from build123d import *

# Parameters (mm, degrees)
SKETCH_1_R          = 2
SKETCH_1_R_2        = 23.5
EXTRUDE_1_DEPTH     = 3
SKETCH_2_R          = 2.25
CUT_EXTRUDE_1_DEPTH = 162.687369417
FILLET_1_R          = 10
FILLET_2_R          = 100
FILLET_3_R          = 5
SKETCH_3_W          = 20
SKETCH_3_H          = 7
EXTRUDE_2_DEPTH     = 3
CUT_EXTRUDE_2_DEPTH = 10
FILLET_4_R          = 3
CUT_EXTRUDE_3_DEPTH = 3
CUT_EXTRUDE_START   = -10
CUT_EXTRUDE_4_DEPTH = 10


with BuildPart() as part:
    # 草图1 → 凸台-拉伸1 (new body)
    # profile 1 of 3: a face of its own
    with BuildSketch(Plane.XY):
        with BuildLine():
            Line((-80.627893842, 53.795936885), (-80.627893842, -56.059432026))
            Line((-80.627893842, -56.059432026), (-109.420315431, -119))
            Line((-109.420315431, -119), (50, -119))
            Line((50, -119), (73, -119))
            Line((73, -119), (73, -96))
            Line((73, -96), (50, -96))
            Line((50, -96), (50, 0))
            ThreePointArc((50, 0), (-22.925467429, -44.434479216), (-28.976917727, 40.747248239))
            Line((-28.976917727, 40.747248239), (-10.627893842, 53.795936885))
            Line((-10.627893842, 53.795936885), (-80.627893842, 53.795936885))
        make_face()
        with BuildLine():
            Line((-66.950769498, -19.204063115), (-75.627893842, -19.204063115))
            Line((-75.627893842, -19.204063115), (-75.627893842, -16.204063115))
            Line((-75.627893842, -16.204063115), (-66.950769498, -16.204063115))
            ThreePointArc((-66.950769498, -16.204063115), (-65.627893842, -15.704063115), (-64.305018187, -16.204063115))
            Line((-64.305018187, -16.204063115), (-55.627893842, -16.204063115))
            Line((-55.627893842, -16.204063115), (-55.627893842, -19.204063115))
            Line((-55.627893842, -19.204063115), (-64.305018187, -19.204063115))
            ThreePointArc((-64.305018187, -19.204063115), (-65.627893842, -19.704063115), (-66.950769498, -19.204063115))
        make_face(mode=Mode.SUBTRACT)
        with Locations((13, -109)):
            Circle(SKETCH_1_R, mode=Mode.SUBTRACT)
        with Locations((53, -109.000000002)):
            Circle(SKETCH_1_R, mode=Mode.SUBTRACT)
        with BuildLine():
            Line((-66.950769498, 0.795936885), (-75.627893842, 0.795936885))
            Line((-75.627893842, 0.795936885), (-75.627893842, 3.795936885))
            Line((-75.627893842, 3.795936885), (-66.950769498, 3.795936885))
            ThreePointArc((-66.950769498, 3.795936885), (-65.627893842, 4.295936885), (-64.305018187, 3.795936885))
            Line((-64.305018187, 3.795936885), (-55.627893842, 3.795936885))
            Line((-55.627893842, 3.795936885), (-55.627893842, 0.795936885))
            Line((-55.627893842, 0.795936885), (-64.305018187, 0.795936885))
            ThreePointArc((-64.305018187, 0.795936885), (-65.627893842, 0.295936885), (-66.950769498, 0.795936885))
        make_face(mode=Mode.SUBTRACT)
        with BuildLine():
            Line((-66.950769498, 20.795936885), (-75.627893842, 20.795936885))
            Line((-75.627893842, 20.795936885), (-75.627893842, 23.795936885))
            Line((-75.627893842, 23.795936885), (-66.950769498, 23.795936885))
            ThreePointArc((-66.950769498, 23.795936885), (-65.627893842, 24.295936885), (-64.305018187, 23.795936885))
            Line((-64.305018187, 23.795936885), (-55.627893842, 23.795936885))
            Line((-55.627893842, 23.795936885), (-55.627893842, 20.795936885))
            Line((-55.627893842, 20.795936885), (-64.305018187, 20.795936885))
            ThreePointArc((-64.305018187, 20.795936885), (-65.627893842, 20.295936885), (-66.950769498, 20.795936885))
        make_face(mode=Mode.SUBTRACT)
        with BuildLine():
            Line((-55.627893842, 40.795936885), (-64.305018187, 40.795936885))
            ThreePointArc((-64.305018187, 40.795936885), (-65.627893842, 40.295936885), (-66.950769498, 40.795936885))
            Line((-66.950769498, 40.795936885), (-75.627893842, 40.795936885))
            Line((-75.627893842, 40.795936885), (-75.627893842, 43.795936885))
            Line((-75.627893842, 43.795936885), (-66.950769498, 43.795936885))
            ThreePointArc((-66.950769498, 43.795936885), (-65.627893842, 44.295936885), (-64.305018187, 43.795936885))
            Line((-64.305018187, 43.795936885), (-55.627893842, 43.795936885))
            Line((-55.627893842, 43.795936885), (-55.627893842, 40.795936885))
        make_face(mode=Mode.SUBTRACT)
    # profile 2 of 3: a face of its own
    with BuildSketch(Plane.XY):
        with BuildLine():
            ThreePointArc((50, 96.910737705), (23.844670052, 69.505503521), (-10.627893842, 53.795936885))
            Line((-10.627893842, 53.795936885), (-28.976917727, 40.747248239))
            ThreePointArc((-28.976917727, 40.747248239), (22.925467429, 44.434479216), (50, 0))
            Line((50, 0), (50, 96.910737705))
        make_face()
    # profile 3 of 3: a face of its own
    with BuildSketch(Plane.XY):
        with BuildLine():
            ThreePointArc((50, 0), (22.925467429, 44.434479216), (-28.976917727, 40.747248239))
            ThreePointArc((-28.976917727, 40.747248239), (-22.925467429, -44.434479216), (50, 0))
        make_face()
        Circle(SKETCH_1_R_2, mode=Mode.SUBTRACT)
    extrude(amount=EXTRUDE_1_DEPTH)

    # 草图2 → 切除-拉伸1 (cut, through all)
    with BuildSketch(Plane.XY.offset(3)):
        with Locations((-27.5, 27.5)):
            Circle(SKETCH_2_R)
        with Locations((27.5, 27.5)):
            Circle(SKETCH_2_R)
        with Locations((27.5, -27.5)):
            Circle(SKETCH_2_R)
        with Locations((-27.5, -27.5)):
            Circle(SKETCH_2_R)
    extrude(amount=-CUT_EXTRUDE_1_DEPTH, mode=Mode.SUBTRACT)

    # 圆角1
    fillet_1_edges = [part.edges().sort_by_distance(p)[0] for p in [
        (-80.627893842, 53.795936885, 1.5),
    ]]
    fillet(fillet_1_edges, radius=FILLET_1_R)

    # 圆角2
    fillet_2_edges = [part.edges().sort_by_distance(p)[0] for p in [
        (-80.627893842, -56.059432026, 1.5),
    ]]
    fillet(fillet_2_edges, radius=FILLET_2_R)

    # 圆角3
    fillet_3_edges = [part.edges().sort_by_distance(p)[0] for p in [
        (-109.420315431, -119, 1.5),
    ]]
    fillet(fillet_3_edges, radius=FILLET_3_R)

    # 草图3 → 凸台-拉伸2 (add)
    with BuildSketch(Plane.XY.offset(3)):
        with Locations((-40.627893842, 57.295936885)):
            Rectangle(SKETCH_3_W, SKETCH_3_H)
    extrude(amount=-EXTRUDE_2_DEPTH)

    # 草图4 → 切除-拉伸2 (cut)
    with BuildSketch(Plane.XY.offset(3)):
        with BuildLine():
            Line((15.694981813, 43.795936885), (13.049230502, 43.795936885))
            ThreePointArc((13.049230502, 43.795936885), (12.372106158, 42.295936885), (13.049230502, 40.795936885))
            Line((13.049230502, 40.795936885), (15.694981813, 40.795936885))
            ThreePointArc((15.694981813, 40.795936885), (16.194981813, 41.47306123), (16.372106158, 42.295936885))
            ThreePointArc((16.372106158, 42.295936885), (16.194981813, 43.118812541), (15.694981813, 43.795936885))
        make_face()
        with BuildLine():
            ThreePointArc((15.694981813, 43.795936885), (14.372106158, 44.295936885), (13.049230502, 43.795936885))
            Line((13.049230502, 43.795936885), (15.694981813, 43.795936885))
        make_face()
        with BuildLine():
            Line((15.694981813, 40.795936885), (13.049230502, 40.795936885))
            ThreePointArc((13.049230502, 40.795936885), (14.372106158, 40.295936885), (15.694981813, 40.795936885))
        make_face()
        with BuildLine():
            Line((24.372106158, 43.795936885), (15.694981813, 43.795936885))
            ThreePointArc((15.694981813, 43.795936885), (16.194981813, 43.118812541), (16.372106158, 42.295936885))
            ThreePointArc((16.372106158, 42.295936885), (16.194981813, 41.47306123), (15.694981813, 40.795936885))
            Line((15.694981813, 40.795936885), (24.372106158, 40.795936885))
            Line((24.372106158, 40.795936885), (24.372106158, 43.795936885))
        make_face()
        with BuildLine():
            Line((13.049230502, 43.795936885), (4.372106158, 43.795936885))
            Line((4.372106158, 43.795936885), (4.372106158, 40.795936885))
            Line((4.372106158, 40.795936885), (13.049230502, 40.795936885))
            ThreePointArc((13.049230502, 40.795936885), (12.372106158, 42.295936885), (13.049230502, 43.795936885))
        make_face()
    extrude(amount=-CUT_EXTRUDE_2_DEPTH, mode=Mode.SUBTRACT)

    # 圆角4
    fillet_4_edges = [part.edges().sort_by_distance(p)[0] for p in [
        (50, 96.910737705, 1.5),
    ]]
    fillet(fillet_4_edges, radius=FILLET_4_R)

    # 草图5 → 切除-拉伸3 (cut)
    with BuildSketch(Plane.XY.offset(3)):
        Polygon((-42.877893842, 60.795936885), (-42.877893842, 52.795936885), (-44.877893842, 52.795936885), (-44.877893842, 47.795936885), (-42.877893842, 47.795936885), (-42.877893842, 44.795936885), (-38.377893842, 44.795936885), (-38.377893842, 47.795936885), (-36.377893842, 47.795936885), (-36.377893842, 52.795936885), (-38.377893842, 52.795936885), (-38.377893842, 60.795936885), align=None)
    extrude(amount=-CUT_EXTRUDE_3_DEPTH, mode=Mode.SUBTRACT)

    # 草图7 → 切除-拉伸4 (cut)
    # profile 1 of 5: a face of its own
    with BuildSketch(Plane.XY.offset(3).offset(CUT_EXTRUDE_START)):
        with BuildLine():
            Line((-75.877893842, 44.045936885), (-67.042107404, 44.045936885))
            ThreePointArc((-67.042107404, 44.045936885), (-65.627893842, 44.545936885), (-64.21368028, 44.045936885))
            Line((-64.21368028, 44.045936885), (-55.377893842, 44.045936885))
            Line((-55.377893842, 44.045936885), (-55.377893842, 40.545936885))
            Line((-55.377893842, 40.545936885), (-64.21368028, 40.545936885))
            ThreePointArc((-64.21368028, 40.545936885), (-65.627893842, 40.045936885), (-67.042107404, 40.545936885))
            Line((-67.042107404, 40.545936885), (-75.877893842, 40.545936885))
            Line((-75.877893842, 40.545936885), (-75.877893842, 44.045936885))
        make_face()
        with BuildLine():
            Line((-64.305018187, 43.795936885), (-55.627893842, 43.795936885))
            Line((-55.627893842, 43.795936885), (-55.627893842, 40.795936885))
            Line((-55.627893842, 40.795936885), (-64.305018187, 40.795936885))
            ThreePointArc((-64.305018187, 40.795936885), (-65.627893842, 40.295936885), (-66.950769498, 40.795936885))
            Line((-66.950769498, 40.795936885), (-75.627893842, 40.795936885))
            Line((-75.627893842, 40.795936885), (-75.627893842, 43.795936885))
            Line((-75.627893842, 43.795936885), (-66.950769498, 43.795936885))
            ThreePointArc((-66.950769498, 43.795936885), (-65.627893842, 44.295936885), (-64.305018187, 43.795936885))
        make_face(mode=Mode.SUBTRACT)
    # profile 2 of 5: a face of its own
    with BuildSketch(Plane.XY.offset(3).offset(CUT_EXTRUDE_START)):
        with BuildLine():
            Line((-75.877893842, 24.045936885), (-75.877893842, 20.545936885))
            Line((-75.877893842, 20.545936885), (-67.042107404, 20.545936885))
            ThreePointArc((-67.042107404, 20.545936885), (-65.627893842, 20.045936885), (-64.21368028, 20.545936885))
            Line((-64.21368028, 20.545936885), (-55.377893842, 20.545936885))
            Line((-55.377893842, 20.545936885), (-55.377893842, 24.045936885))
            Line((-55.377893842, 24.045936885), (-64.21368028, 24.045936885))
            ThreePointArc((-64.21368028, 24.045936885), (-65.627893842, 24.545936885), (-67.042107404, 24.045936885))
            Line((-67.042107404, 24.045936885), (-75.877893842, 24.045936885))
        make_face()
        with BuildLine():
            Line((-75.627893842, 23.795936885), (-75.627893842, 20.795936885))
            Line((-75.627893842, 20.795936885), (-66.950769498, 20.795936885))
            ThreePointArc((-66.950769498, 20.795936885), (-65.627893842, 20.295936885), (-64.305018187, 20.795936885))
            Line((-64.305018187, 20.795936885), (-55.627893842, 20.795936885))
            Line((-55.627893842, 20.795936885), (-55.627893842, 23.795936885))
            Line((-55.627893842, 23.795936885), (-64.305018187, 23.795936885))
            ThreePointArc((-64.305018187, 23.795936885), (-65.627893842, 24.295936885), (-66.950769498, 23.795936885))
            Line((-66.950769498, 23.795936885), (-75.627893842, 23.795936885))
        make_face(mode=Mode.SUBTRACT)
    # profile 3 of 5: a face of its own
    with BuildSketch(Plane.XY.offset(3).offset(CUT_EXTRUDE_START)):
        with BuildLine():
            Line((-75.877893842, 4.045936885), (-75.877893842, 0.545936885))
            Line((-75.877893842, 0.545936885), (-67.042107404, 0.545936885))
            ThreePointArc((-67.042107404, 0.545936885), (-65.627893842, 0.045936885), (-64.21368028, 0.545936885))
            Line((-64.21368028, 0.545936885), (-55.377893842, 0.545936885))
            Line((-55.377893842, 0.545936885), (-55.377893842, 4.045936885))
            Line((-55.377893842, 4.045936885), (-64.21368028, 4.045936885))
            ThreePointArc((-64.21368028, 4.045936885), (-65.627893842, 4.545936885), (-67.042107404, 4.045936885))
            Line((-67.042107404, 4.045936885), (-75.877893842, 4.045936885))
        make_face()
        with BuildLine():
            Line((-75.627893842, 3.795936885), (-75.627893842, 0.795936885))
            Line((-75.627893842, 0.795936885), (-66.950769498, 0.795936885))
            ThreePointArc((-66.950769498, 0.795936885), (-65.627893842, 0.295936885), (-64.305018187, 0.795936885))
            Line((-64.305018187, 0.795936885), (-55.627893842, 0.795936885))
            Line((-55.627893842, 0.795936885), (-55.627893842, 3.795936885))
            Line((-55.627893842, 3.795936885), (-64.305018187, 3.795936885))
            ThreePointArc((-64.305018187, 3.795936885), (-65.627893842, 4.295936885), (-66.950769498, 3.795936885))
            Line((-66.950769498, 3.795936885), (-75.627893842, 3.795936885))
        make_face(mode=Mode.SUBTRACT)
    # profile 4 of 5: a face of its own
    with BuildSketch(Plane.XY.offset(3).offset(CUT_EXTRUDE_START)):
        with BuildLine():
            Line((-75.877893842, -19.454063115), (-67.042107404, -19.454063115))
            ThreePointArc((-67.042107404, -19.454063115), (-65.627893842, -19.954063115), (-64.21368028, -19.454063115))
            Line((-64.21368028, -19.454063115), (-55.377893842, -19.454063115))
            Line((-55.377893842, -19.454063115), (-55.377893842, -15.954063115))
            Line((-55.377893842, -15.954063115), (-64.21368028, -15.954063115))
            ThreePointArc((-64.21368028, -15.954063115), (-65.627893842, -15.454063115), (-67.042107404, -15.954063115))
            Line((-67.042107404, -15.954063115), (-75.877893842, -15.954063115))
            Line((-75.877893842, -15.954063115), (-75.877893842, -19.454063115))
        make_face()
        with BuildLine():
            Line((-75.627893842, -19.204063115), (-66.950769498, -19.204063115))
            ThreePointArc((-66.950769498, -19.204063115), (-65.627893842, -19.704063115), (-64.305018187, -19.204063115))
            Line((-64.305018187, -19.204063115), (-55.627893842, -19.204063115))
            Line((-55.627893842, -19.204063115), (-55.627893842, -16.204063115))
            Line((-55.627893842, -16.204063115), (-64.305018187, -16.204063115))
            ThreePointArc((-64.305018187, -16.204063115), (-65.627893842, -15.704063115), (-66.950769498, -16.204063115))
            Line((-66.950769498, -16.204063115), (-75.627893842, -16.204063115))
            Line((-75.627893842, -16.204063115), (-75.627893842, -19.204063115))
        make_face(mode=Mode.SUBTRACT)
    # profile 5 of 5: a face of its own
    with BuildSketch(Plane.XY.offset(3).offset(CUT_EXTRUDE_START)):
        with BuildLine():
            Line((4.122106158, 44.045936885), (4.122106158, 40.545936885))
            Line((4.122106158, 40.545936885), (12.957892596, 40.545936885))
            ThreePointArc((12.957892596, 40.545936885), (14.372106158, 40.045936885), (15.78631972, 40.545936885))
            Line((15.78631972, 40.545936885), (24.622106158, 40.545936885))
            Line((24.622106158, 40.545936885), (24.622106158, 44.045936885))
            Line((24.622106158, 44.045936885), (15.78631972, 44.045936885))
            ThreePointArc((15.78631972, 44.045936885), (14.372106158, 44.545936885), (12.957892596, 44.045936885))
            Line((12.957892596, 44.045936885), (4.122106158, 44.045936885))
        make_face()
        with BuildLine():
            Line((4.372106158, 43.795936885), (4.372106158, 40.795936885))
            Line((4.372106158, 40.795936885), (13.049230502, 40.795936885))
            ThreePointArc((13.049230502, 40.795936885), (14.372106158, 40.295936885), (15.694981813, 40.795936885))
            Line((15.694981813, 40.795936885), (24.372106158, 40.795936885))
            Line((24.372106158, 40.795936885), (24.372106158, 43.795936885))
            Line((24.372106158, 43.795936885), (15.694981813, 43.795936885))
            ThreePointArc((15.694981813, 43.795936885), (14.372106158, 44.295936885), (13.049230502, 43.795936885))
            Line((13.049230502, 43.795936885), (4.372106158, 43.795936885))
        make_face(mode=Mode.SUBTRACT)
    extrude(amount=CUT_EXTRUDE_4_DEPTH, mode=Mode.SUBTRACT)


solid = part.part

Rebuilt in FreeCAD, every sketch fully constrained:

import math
import FreeCAD as App
import Part
import Sketcher

V = App.Vector


def edges_at(feature, points):
    """Names of the edges that pass closest to the given points."""
    edges = feature.Shape.Edges
    near = lambda p: min(range(len(edges)), key=lambda i: edges[i].distToShape(Part.Vertex(*p))[0])
    return sorted({f"Edge{near(p) + 1}" for p in points})

doc = App.newDocument("Part")
params = doc.addObject("Spreadsheet::Sheet", "Params")
for row, (alias, value) in enumerate([
    ("sketch1_diameter", "4 mm"),
    ("sketch1_diameter2", "47 mm"),
    ("sketch1_radius", "100 mm"),
    ("sketch1_width", "23 mm"),
    ("sketch1_width2", "70 mm"),
    ("pad1_length", "3 mm"),
    ("sketch2_diameter", "4.5 mm"),
    ("fillet_radius", "10 mm"),
    ("fillet2_radius", "100 mm"),
    ("fillet3_radius", "5 mm"),
    ("sketch3_width", "20 mm"),
    ("sketch3_height", "7 mm"),
    ("pad2_length", "3 mm"),
    ("sketch4_radius", "2 mm"),
    ("sketch4_height", "3 mm"),
    ("pocket2_length", "10 mm"),
    ("fillet4_radius", "3 mm"),
    ("sketch5_width", "2 mm"),
    ("sketch5_height", "8 mm"),
    ("sketch5_height2", "5 mm"),
    ("sketch5_height3", "3 mm"),
    ("sketch5_width2", "4.5 mm"),
    ("pocket3_length", "3 mm"),
    ("sketch6_radius", "2 mm"),
    ("sketch6_height", "3 mm"),
    ("sketch6_radius2", "2.25 mm"),
    ("sketch6_height2", "3.5 mm"),
    ("pocket4_length", "10 mm"),
], start=1):
    params.set(f"A{row}", alias)
    params.set(f"B{row}", "=" + value)
    params.setAlias(f"B{row}", alias)

body = doc.addObject("PartDesign::Body", "Body")

sketch1 = doc.addObject("Sketcher::SketchObject", "Sketch")
body.addObject(sketch1)
sketch1.AttachmentSupport = (doc.XY_Plane, [""])
sketch1.MapMode = "FlatFace"
sketch1.addGeometry([
    Part.LineSegment(V(-80.6, 53.8, 0), V(-80.6, -56.1, 0)),
    Part.LineSegment(V(-80.6, -56.1, 0), V(-109.4, -119, 0)),
    Part.LineSegment(V(-109.4, -119, 0), V(73, -119, 0)),
    Part.LineSegment(V(73, -119, 0), V(73, -96, 0)),
    Part.LineSegment(V(73, -96, 0), V(50, -96, 0)),
    Part.LineSegment(V(50, -96, 0), V(50, 96.9, 0)),
    Part.ArcOfCircle(Part.Circle(V(-34.1, 151, 0), V(0, 0, 1), 100), math.radians(-76), math.radians(-33)),
    Part.LineSegment(V(-10.6, 53.8, 0), V(-80.6, 53.8, 0)),
    Part.Circle(V(13, -109, 0), V(0, 0, 1), 2),
    Part.Circle(V(53, -109, 0), V(0, 0, 1), 2),
    Part.ArcOfCircle(Part.Circle(V(-65.6, -17.7, 0), V(0, 0, 1), 2), math.radians(-131), math.radians(-49)),
    Part.LineSegment(V(-67, -19.2, 0), V(-75.6, -19.2, 0)),
    Part.LineSegment(V(-75.6, -19.2, 0), V(-75.6, -16.2, 0)),
    Part.LineSegment(V(-75.6, -16.2, 0), V(-67, -16.2, 0)),
    Part.ArcOfCircle(Part.Circle(V(-65.6, -17.7, 0), V(0, 0, 1), 2), math.radians(49), math.radians(131)),
    Part.LineSegment(V(-64.3, -16.2, 0), V(-55.6, -16.2, 0)),
    Part.LineSegment(V(-55.6, -16.2, 0), V(-55.6, -19.2, 0)),
    Part.LineSegment(V(-55.6, -19.2, 0), V(-64.3, -19.2, 0)),
    Part.ArcOfCircle(Part.Circle(V(-65.6, 2.3, 0), V(0, 0, 1), 2), math.radians(-131), math.radians(-49)),
    Part.LineSegment(V(-67, 0.8, 0), V(-75.6, 0.8, 0)),
    Part.LineSegment(V(-75.6, 0.8, 0), V(-75.6, 3.8, 0)),
    Part.LineSegment(V(-75.6, 3.8, 0), V(-67, 3.8, 0)),
    Part.ArcOfCircle(Part.Circle(V(-65.6, 2.3, 0), V(0, 0, 1), 2), math.radians(49), math.radians(131)),
    Part.LineSegment(V(-64.3, 3.8, 0), V(-55.6, 3.8, 0)),
    Part.LineSegment(V(-55.6, 3.8, 0), V(-55.6, 0.8, 0)),
    Part.LineSegment(V(-55.6, 0.8, 0), V(-64.3, 0.8, 0)),
    Part.ArcOfCircle(Part.Circle(V(-65.6, 22.3, 0), V(0, 0, 1), 2), math.radians(-131), math.radians(-49)),
    Part.LineSegment(V(-67, 20.8, 0), V(-75.6, 20.8, 0)),
    Part.LineSegment(V(-75.6, 20.8, 0), V(-75.6, 23.8, 0)),
    Part.LineSegment(V(-75.6, 23.8, 0), V(-67, 23.8, 0)),
    Part.ArcOfCircle(Part.Circle(V(-65.6, 22.3, 0), V(0, 0, 1), 2), math.radians(49), math.radians(131)),
    Part.LineSegment(V(-64.3, 23.8, 0), V(-55.6, 23.8, 0)),
    Part.LineSegment(V(-55.6, 23.8, 0), V(-55.6, 20.8, 0)),
    Part.LineSegment(V(-55.6, 20.8, 0), V(-64.3, 20.8, 0)),
    Part.LineSegment(V(-55.6, 43.8, 0), V(-55.6, 40.8, 0)),
    Part.LineSegment(V(-55.6, 40.8, 0), V(-64.3, 40.8, 0)),
    Part.ArcOfCircle(Part.Circle(V(-65.6, 42.3, 0), V(0, 0, 1), 2), math.radians(-131), math.radians(-49)),
    Part.LineSegment(V(-67, 40.8, 0), V(-75.6, 40.8, 0)),
    Part.LineSegment(V(-75.6, 40.8, 0), V(-75.6, 43.8, 0)),
    Part.LineSegment(V(-75.6, 43.8, 0), V(-67, 43.8, 0)),
    Part.ArcOfCircle(Part.Circle(V(-65.6, 42.3, 0), V(0, 0, 1), 2), math.radians(49), math.radians(131)),
    Part.LineSegment(V(-64.3, 43.8, 0), V(-55.6, 43.8, 0)),
    Part.Circle(V(0, 0, 0), V(0, 0, 1), 23.5),
], False)
sketch1.addConstraint([
    Sketcher.Constraint("Coincident", 0, 2, 1, 1),
    Sketcher.Constraint("Coincident", 1, 2, 2, 1),
    Sketcher.Constraint("Coincident", 2, 2, 3, 1),
    Sketcher.Constraint("Coincident", 3, 2, 4, 1),
    Sketcher.Constraint("Coincident", 4, 2, 5, 1),
    Sketcher.Constraint("Coincident", 5, 2, 6, 2),
    Sketcher.Constraint("Coincident", 6, 1, 7, 1),
    Sketcher.Constraint("Coincident", 7, 2, 0, 1),
    Sketcher.Constraint("Coincident", 10, 1, 11, 1),
    Sketcher.Constraint("Coincident", 11, 2, 12, 1),
    Sketcher.Constraint("Coincident", 12, 2, 13, 1),
    Sketcher.Constraint("Coincident", 13, 2, 14, 2),
    Sketcher.Constraint("Coincident", 14, 1, 15, 1),
    Sketcher.Constraint("Coincident", 15, 2, 16, 1),
    Sketcher.Constraint("Coincident", 16, 2, 17, 1),
    Sketcher.Constraint("Coincident", 17, 2, 10, 2),
    Sketcher.Constraint("Coincident", 18, 1, 19, 1),
    Sketcher.Constraint("Coincident", 19, 2, 20, 1),
    Sketcher.Constraint("Coincident", 20, 2, 21, 1),
    Sketcher.Constraint("Coincident", 21, 2, 22, 2),
    Sketcher.Constraint("Coincident", 22, 1, 23, 1),
    Sketcher.Constraint("Coincident", 23, 2, 24, 1),
    Sketcher.Constraint("Coincident", 24, 2, 25, 1),
    Sketcher.Constraint("Coincident", 25, 2, 18, 2),
    Sketcher.Constraint("Coincident", 26, 1, 27, 1),
    Sketcher.Constraint("Coincident", 27, 2, 28, 1),
    Sketcher.Constraint("Coincident", 28, 2, 29, 1),
    Sketcher.Constraint("Coincident", 29, 2, 30, 2),
    Sketcher.Constraint("Coincident", 30, 1, 31, 1),
    Sketcher.Constraint("Coincident", 31, 2, 32, 1),
    Sketcher.Constraint("Coincident", 32, 2, 33, 1),
    Sketcher.Constraint("Coincident", 33, 2, 26, 2),
    Sketcher.Constraint("Coincident", 34, 2, 35, 1),
    Sketcher.Constraint("Coincident", 35, 2, 36, 2),
    Sketcher.Constraint("Coincident", 36, 1, 37, 1),
    Sketcher.Constraint("Coincident", 37, 2, 38, 1),
    Sketcher.Constraint("Coincident", 38, 2, 39, 1),
    Sketcher.Constraint("Coincident", 39, 2, 40, 2),
    Sketcher.Constraint("Coincident", 40, 1, 41, 1),
    Sketcher.Constraint("Coincident", 41, 2, 34, 1),
    Sketcher.Constraint("Vertical", 0),
    Sketcher.Constraint("Horizontal", 2),
    Sketcher.Constraint("Vertical", 3),
    Sketcher.Constraint("Horizontal", 4),
    Sketcher.Constraint("Vertical", 5),
    Sketcher.Constraint("Horizontal", 7),
    Sketcher.Constraint("Horizontal", 11),
    Sketcher.Constraint("Vertical", 12),
    Sketcher.Constraint("Horizontal", 13),
    Sketcher.Constraint("Horizontal", 15),
    Sketcher.Constraint("Vertical", 16),
    Sketcher.Constraint("Horizontal", 17),
    Sketcher.Constraint("Horizontal", 19),
    Sketcher.Constraint("Vertical", 20),
    Sketcher.Constraint("Horizontal", 21),
    Sketcher.Constraint("Horizontal", 23),
    Sketcher.Constraint("Vertical", 24),
    Sketcher.Constraint("Horizontal", 25),
    Sketcher.Constraint("Horizontal", 27),
    Sketcher.Constraint("Vertical", 28),
    Sketcher.Constraint("Horizontal", 29),
    Sketcher.Constraint("Horizontal", 31),
    Sketcher.Constraint("Vertical", 32),
    Sketcher.Constraint("Horizontal", 33),
    Sketcher.Constraint("Vertical", 34),
    Sketcher.Constraint("Horizontal", 35),
    Sketcher.Constraint("Horizontal", 37),
    Sketcher.Constraint("Vertical", 38),
    Sketcher.Constraint("Horizontal", 39),
    Sketcher.Constraint("Horizontal", 41),
    Sketcher.Constraint("Coincident", 42, 3, -1, 1),
    Sketcher.Constraint("Coincident", 14, 3, 10, 3),
    Sketcher.Constraint("Coincident", 22, 3, 18, 3),
    Sketcher.Constraint("Coincident", 30, 3, 26, 3),
    Sketcher.Constraint("Coincident", 40, 3, 36, 3),
    Sketcher.Constraint("Equal", 8, 9),
    Sketcher.Constraint("Equal", 9, 10),
    Sketcher.Constraint("Equal", 10, 14),
    Sketcher.Constraint("Equal", 14, 18),
    Sketcher.Constraint("Equal", 18, 22),
    Sketcher.Constraint("Equal", 22, 26),
    Sketcher.Constraint("Equal", 26, 30),
    Sketcher.Constraint("Equal", 30, 36),
    Sketcher.Constraint("Equal", 36, 40),
    Sketcher.Constraint("Horizontal", 8, 3, 9, 3),
    Sketcher.Constraint("Horizontal", 13, 2, 14, 1),
    Sketcher.Constraint("Horizontal", 11, 2, 16, 2),
    Sketcher.Constraint("Horizontal", 21, 2, 22, 1),
    Sketcher.Constraint("Horizontal", 19, 2, 24, 2),
    Sketcher.Constraint("Horizontal", 29, 2, 30, 1),
    Sketcher.Constraint("Horizontal", 27, 2, 32, 2),
    Sketcher.Constraint("Horizontal", 35, 2, 36, 1),
    Sketcher.Constraint("Horizontal", 39, 2, 40, 1),
    Sketcher.Constraint("Vertical", 14, 3, 18, 3),
    Sketcher.Constraint("Vertical", 22, 3, 26, 3),
    Sketcher.Constraint("Vertical", 30, 3, 36, 3),
    Sketcher.Constraint("Vertical", 10, 1, 13, 2),
    Sketcher.Constraint("Vertical", 13, 2, 18, 1),
    Sketcher.Constraint("Vertical", 12, 2, 19, 2),
    Sketcher.Constraint("Vertical", 18, 1, 21, 2),
    Sketcher.Constraint("Vertical", 16, 2, 23, 2),
    Sketcher.Constraint("Vertical", 21, 2, 26, 1),
    Sketcher.Constraint("Vertical", 20, 2, 27, 2),
    Sketcher.Constraint("Vertical", 26, 1, 29, 2),
    Sketcher.Constraint("Vertical", 24, 2, 31, 2),
    Sketcher.Constraint("Vertical", 32, 2, 34, 2),
    Sketcher.Constraint("Vertical", 33, 2, 35, 2),
    Sketcher.Constraint("Vertical", 28, 2, 37, 2),
    Sketcher.Constraint("Vertical", 36, 1, 39, 2),
    Sketcher.Constraint("Equal", 13, 15),
    Sketcher.Constraint("Equal", 4, 3),
    Sketcher.Constraint("Diameter", 8, 4.0),
    Sketcher.Constraint("Diameter", 42, 47.0),
    Sketcher.Constraint("Radius", 6, 100.0),
    Sketcher.Constraint("DistanceX", 4, 2, 4, 1, 23.0),
    Sketcher.Constraint("DistanceX", 7, 2, 7, 1, 70.0),
    Sketcher.Constraint("DistanceY", 12, 1, 12, 2, 3.0),
    Sketcher.Constraint("DistanceY", -1, 1, 6, 3, 151.0),
    Sketcher.Constraint("DistanceX", -1, 1, 8, 3, 13.0),
    Sketcher.Constraint("DistanceY", 8, 3, -1, 1, 109.0),
    Sketcher.Constraint("DistanceX", -1, 1, 9, 3, 53.0),
    Sketcher.Constraint("DistanceY", 1, 2, -1, 1, 119.0),
    Sketcher.Constraint("DistanceX", -1, 1, 2, 2, 73.0),
    Sketcher.Constraint("DistanceY", 10, 3, 18, 3, 20.0),
    Sketcher.Constraint("DistanceY", 18, 3, 26, 3, 20.0),
    Sketcher.Constraint("DistanceY", 26, 3, 36, 3, 20.0),
    Sketcher.Constraint("DistanceX", 0, 2, 10, 3, 15.0),
    Sketcher.Constraint("DistanceX", 11, 2, 10, 3, 10.0),
    Sketcher.Constraint("DistanceY", 37, 2, 7, 2, 13.0),
    Sketcher.Constraint("DistanceY", 0, 2, 0, 1, 109.855369),
    Sketcher.Constraint("DistanceY", 36, 3, 5, 2, 54.614801),
    Sketcher.Constraint("DistanceX", 2, 1, 2, 2, 182.420315),
    Sketcher.Constraint("DistanceY", 5, 1, 5, 2, 192.910738),
])
sketch1.setExpression("Constraints[111]", "Params.sketch1_diameter")
sketch1.setExpression("Constraints[112]", "Params.sketch1_diameter2")
sketch1.setExpression("Constraints[113]", "Params.sketch1_radius")
sketch1.setExpression("Constraints[114]", "Params.sketch1_width")
sketch1.setExpression("Constraints[115]", "Params.sketch1_width2")
pad1 = doc.addObject("PartDesign::Pad", "Pad")
body.addObject(pad1)
pad1.Profile = sketch1
pad1.setExpression("Length", "Params.pad1_length")

sketch2 = doc.addObject("Sketcher::SketchObject", "Sketch001")
body.addObject(sketch2)
sketch2.AttachmentSupport = (doc.XY_Plane, [""])
sketch2.MapMode = "FlatFace"
sketch2.AttachmentOffset = App.Placement(V(0, 0, 3), App.Rotation())
sketch2.addGeometry([
    Part.Circle(V(-27.5, 27.5, 0), V(0, 0, 1), 2.2),
    Part.Circle(V(27.5, 27.5, 0), V(0, 0, 1), 2.2),
    Part.Circle(V(27.5, -27.5, 0), V(0, 0, 1), 2.2),
    Part.Circle(V(-27.5, -27.5, 0), V(0, 0, 1), 2.2),
], False)
sketch2.addConstraint([
    Sketcher.Constraint("Equal", 0, 1),
    Sketcher.Constraint("Equal", 1, 2),
    Sketcher.Constraint("Equal", 2, 3),
    Sketcher.Constraint("Symmetric", 0, 3, 2, 3, -1, 1),
    Sketcher.Constraint("Symmetric", 1, 3, 3, 3, -1, 1),
    Sketcher.Constraint("Symmetric", 0, 3, 1, 3, -2),
    Sketcher.Constraint("Diameter", 0, 4.5),
    Sketcher.Constraint("DistanceX", 0, 3, 1, 3, 55.0),
    Sketcher.Constraint("DistanceY", 2, 3, 1, 3, 55.0),
])
sketch2.setExpression("Constraints[6]", "Params.sketch2_diameter")
pocket1 = doc.addObject("PartDesign::Pocket", "Pocket")
body.addObject(pocket1)
pocket1.Profile = sketch2
pocket1.Type = "ThroughAll"
doc.recompute()

fillet = doc.addObject("PartDesign::Fillet", "Fillet")
body.addObject(fillet)
fillet.Base = (pocket1, edges_at(pocket1, [(-80.628, 53.796, 1.5)]))
fillet.setExpression("Radius", "Params.fillet_radius")
doc.recompute()

fillet2 = doc.addObject("PartDesign::Fillet", "Fillet001")
body.addObject(fillet2)
fillet2.Base = (fillet, edges_at(fillet, [(-80.628, -56.059, 1.5)]))
fillet2.setExpression("Radius", "Params.fillet2_radius")
doc.recompute()

fillet3 = doc.addObject("PartDesign::Fillet", "Fillet002")
body.addObject(fillet3)
fillet3.Base = (fillet2, edges_at(fillet2, [(-109.42, -119, 1.5)]))
fillet3.setExpression("Radius", "Params.fillet3_radius")

sketch3 = doc.addObject("Sketcher::SketchObject", "Sketch002")
body.addObject(sketch3)
sketch3.AttachmentSupport = (doc.XY_Plane, [""])
sketch3.MapMode = "FlatFace"
sketch3.AttachmentOffset = App.Placement(V(0, 0, 3), App.Rotation())
sketch3.addGeometry([
    Part.LineSegment(V(-51, 61, 0), V(-51, 54, 0)),
    Part.LineSegment(V(-51, 54, 0), V(-31, 54, 0)),
    Part.LineSegment(V(-31, 54, 0), V(-31, 61, 0)),
    Part.LineSegment(V(-31, 61, 0), V(-51, 61, 0)),
], False)
sketch3.addConstraint([
    Sketcher.Constraint("Coincident", 0, 2, 1, 1),
    Sketcher.Constraint("Coincident", 1, 2, 2, 1),
    Sketcher.Constraint("Coincident", 2, 2, 3, 1),
    Sketcher.Constraint("Coincident", 3, 2, 0, 1),
    Sketcher.Constraint("Vertical", 0),
    Sketcher.Constraint("Horizontal", 1),
    Sketcher.Constraint("Vertical", 2),
    Sketcher.Constraint("Horizontal", 3),
    Sketcher.Constraint("DistanceX", 1, 1, 1, 2, 20.0),
    Sketcher.Constraint("DistanceY", 0, 2, 0, 1, 7.0),
    Sketcher.Constraint("DistanceX", 0, 2, -1, 1, 50.627894),
    Sketcher.Constraint("DistanceY", -1, 1, 0, 2, 53.795937),
])
sketch3.setExpression("Constraints[8]", "Params.sketch3_width")
sketch3.setExpression("Constraints[9]", "Params.sketch3_height")
pad2 = doc.addObject("PartDesign::Pad", "Pad001")
body.addObject(pad2)
pad2.Profile = sketch3
pad2.setExpression("Length", "Params.pad2_length")
pad2.Reversed = True

sketch4 = doc.addObject("Sketcher::SketchObject", "Sketch003")
body.addObject(sketch4)
sketch4.AttachmentSupport = (doc.XY_Plane, [""])
sketch4.MapMode = "FlatFace"
sketch4.AttachmentOffset = App.Placement(V(0, 0, 3), App.Rotation())
sketch4.addGeometry([
    Part.ArcOfCircle(Part.Circle(V(14.4, 42.3, 0), V(0, 0, 1), 2), math.radians(-131), math.radians(-49)),
    Part.LineSegment(V(15.7, 40.8, 0), V(24.4, 40.8, 0)),
    Part.LineSegment(V(24.4, 40.8, 0), V(24.4, 43.8, 0)),
    Part.LineSegment(V(24.4, 43.8, 0), V(15.7, 43.8, 0)),
    Part.ArcOfCircle(Part.Circle(V(14.4, 42.3, 0), V(0, 0, 1), 2), math.radians(49), math.radians(131)),
    Part.LineSegment(V(13, 43.8, 0), V(4.4, 43.8, 0)),
    Part.LineSegment(V(4.4, 43.8, 0), V(4.4, 40.8, 0)),
    Part.LineSegment(V(4.4, 40.8, 0), V(13, 40.8, 0)),
], False)
sketch4.addConstraint([
    Sketcher.Constraint("Coincident", 0, 2, 1, 1),
    Sketcher.Constraint("Coincident", 1, 2, 2, 1),
    Sketcher.Constraint("Coincident", 2, 2, 3, 1),
    Sketcher.Constraint("Coincident", 3, 2, 4, 1),
    Sketcher.Constraint("Coincident", 4, 2, 5, 1),
    Sketcher.Constraint("Coincident", 5, 2, 6, 1),
    Sketcher.Constraint("Coincident", 6, 2, 7, 1),
    Sketcher.Constraint("Coincident", 7, 2, 0, 1),
    Sketcher.Constraint("Horizontal", 1),
    Sketcher.Constraint("Vertical", 2),
    Sketcher.Constraint("Horizontal", 3),
    Sketcher.Constraint("Horizontal", 5),
    Sketcher.Constraint("Vertical", 6),
    Sketcher.Constraint("Horizontal", 7),
    Sketcher.Constraint("Coincident", 4, 3, 0, 3),
    Sketcher.Constraint("Equal", 0, 4),
    Sketcher.Constraint("Horizontal", 3, 2, 4, 2),
    Sketcher.Constraint("Horizontal", 1, 2, 6, 2),
    Sketcher.Constraint("Vertical", 0, 2, 3, 2),
    Sketcher.Constraint("Equal", 3, 5),
    Sketcher.Constraint("Radius", 0, 2.0),
    Sketcher.Constraint("DistanceY", 2, 1, 2, 2, 3.0),
    Sketcher.Constraint("DistanceX", 0, 3, 1, 2, 10.0),
    Sketcher.Constraint("DistanceX", -1, 1, 0, 2, 15.694982),
    Sketcher.Constraint("DistanceY", -1, 1, 0, 3, 42.295937),
])
sketch4.setExpression("Constraints[20]", "Params.sketch4_radius")
sketch4.setExpression("Constraints[21]", "Params.sketch4_height")
pocket2 = doc.addObject("PartDesign::Pocket", "Pocket001")
body.addObject(pocket2)
pocket2.Profile = sketch4
pocket2.setExpression("Length", "Params.pocket2_length")
doc.recompute()

fillet4 = doc.addObject("PartDesign::Fillet", "Fillet003")
body.addObject(fillet4)
fillet4.Base = (pocket2, edges_at(pocket2, [(50, 96.911, 1.5)]))
fillet4.setExpression("Radius", "Params.fillet4_radius")

sketch5 = doc.addObject("Sketcher::SketchObject", "Sketch004")
body.addObject(sketch5)
sketch5.AttachmentSupport = (doc.XY_Plane, [""])
sketch5.MapMode = "FlatFace"
sketch5.AttachmentOffset = App.Placement(V(0, 0, 3), App.Rotation())
sketch5.addGeometry([
    Part.LineSegment(V(-42.9, 60.8, 0), V(-42.9, 52.8, 0)),
    Part.LineSegment(V(-42.9, 52.8, 0), V(-44.9, 52.8, 0)),
    Part.LineSegment(V(-44.9, 52.8, 0), V(-44.9, 47.8, 0)),
    Part.LineSegment(V(-44.9, 47.8, 0), V(-42.9, 47.8, 0)),
    Part.LineSegment(V(-42.9, 47.8, 0), V(-42.9, 44.8, 0)),
    Part.LineSegment(V(-42.9, 44.8, 0), V(-38.4, 44.8, 0)),
    Part.LineSegment(V(-38.4, 44.8, 0), V(-38.4, 47.8, 0)),
    Part.LineSegment(V(-38.4, 47.8, 0), V(-36.4, 47.8, 0)),
    Part.LineSegment(V(-36.4, 47.8, 0), V(-36.4, 52.8, 0)),
    Part.LineSegment(V(-36.4, 52.8, 0), V(-38.4, 52.8, 0)),
    Part.LineSegment(V(-38.4, 52.8, 0), V(-38.4, 60.8, 0)),
    Part.LineSegment(V(-38.4, 60.8, 0), V(-42.9, 60.8, 0)),
], False)
sketch5.addConstraint([
    Sketcher.Constraint("Coincident", 0, 2, 1, 1),
    Sketcher.Constraint("Coincident", 1, 2, 2, 1),
    Sketcher.Constraint("Coincident", 2, 2, 3, 1),
    Sketcher.Constraint("Coincident", 3, 2, 4, 1),
    Sketcher.Constraint("Coincident", 4, 2, 5, 1),
    Sketcher.Constraint("Coincident", 5, 2, 6, 1),
    Sketcher.Constraint("Coincident", 6, 2, 7, 1),
    Sketcher.Constraint("Coincident", 7, 2, 8, 1),
    Sketcher.Constraint("Coincident", 8, 2, 9, 1),
    Sketcher.Constraint("Coincident", 9, 2, 10, 1),
    Sketcher.Constraint("Coincident", 10, 2, 11, 1),
    Sketcher.Constraint("Coincident", 11, 2, 0, 1),
    Sketcher.Constraint("Vertical", 0),
    Sketcher.Constraint("Horizontal", 1),
    Sketcher.Constraint("Vertical", 2),
    Sketcher.Constraint("Horizontal", 3),
    Sketcher.Constraint("Vertical", 4),
    Sketcher.Constraint("Horizontal", 5),
    Sketcher.Constraint("Vertical", 6),
    Sketcher.Constraint("Horizontal", 7),
    Sketcher.Constraint("Vertical", 8),
    Sketcher.Constraint("Horizontal", 9),
    Sketcher.Constraint("Vertical", 10),
    Sketcher.Constraint("Horizontal", 11),
    Sketcher.Constraint("Horizontal", 3, 2, 6, 2),
    Sketcher.Constraint("Horizontal", 1, 2, 8, 2),
    Sketcher.Constraint("Vertical", 0, 2, 3, 2),
    Sketcher.Constraint("Vertical", 6, 2, 9, 2),
    Sketcher.Constraint("Equal", 3, 7),
    Sketcher.Constraint("DistanceX", 1, 2, 1, 1, 2.0),
    Sketcher.Constraint("DistanceY", 0, 2, 0, 1, 8.0),
    Sketcher.Constraint("DistanceY", 2, 2, 2, 1, 5.0),
    Sketcher.Constraint("DistanceY", 4, 2, 4, 1, 3.0),
    Sketcher.Constraint("DistanceX", 5, 1, 5, 2, 4.5),
    Sketcher.Constraint("DistanceX", 0, 2, -1, 1, 42.877894),
    Sketcher.Constraint("DistanceY", -1, 1, 0, 2, 52.795937),
])
sketch5.setExpression("Constraints[29]", "Params.sketch5_width")
sketch5.setExpression("Constraints[30]", "Params.sketch5_height")
sketch5.setExpression("Constraints[31]", "Params.sketch5_height2")
sketch5.setExpression("Constraints[32]", "Params.sketch5_height3")
sketch5.setExpression("Constraints[33]", "Params.sketch5_width2")
pocket3 = doc.addObject("PartDesign::Pocket", "Pocket002")
body.addObject(pocket3)
pocket3.Profile = sketch5
pocket3.setExpression("Length", "Params.pocket3_length")

sketch6 = doc.addObject("Sketcher::SketchObject", "Sketch005")
body.addObject(sketch6)
sketch6.AttachmentSupport = (doc.XY_Plane, [""])
sketch6.MapMode = "FlatFace"
sketch6.AttachmentOffset = App.Placement(V(0, 0, -7), App.Rotation())
sketch6.addGeometry([
    Part.LineSegment(V(-67, 44, 0), V(-75.9, 44, 0)),
    Part.LineSegment(V(-75.9, 44, 0), V(-75.9, 40.5, 0)),
    Part.LineSegment(V(-75.9, 40.5, 0), V(-67, 40.5, 0)),
    Part.ArcOfCircle(Part.Circle(V(-65.6, 42.3, 0), V(0, 0, 1), 2.2), math.radians(-129), math.radians(-51)),
    Part.LineSegment(V(-64.2, 40.5, 0), V(-55.4, 40.5, 0)),
    Part.LineSegment(V(-55.4, 40.5, 0), V(-55.4, 44, 0)),
    Part.LineSegment(V(-55.4, 44, 0), V(-64.2, 44, 0)),
    Part.ArcOfCircle(Part.Circle(V(-65.6, 42.3, 0), V(0, 0, 1), 2.2), math.radians(51), math.radians(129)),
    Part.LineSegment(V(-64.3, 43.8, 0), V(-55.6, 43.8, 0)),
    Part.LineSegment(V(-55.6, 43.8, 0), V(-55.6, 40.8, 0)),
    Part.LineSegment(V(-55.6, 40.8, 0), V(-64.3, 40.8, 0)),
    Part.ArcOfCircle(Part.Circle(V(-65.6, 42.3, 0), V(0, 0, 1), 2), math.radians(-131), math.radians(-49)),
    Part.LineSegment(V(-67, 40.8, 0), V(-75.6, 40.8, 0)),
    Part.LineSegment(V(-75.6, 40.8, 0), V(-75.6, 43.8, 0)),
    Part.LineSegment(V(-75.6, 43.8, 0), V(-67, 43.8, 0)),
    Part.ArcOfCircle(Part.Circle(V(-65.6, 42.3, 0), V(0, 0, 1), 2), math.radians(49), math.radians(131)),
    Part.LineSegment(V(-75.9, 24, 0), V(-75.9, 20.5, 0)),
    Part.LineSegment(V(-75.9, 20.5, 0), V(-67, 20.5, 0)),
    Part.ArcOfCircle(Part.Circle(V(-65.6, 22.3, 0), V(0, 0, 1), 2.2), math.radians(-129), math.radians(-51)),
    Part.LineSegment(V(-64.2, 20.5, 0), V(-55.4, 20.5, 0)),
    Part.LineSegment(V(-55.4, 20.5, 0), V(-55.4, 24, 0)),
    Part.LineSegment(V(-55.4, 24, 0), V(-64.2, 24, 0)),
    Part.ArcOfCircle(Part.Circle(V(-65.6, 22.3, 0), V(0, 0, 1), 2.2), math.radians(51), math.radians(129)),
    Part.LineSegment(V(-67, 24, 0), V(-75.9, 24, 0)),
    Part.LineSegment(V(-75.6, 20.8, 0), V(-75.6, 23.8, 0)),
    Part.LineSegment(V(-75.6, 23.8, 0), V(-67, 23.8, 0)),
    Part.ArcOfCircle(Part.Circle(V(-65.6, 22.3, 0), V(0, 0, 1), 2), math.radians(49), math.radians(131)),
    Part.LineSegment(V(-64.3, 23.8, 0), V(-55.6, 23.8, 0)),
    Part.LineSegment(V(-55.6, 23.8, 0), V(-55.6, 20.8, 0)),
    Part.LineSegment(V(-55.6, 20.8, 0), V(-64.3, 20.8, 0)),
    Part.ArcOfCircle(Part.Circle(V(-65.6, 22.3, 0), V(0, 0, 1), 2), math.radians(-131), math.radians(-49)),
    Part.LineSegment(V(-67, 20.8, 0), V(-75.6, 20.8, 0)),
    Part.LineSegment(V(-75.9, 4, 0), V(-75.9, 0.5, 0)),
    Part.LineSegment(V(-75.9, 0.5, 0), V(-67, 0.5, 0)),
    Part.ArcOfCircle(Part.Circle(V(-65.6, 2.3, 0), V(0, 0, 1), 2.2), math.radians(-129), math.radians(-51)),
    Part.LineSegment(V(-64.2, 0.5, 0), V(-55.4, 0.5, 0)),
    Part.LineSegment(V(-55.4, 0.5, 0), V(-55.4, 4, 0)),
    Part.LineSegment(V(-55.4, 4, 0), V(-64.2, 4, 0)),
    Part.ArcOfCircle(Part.Circle(V(-65.6, 2.3, 0), V(0, 0, 1), 2.2), math.radians(51), math.radians(129)),
    Part.LineSegment(V(-67, 4, 0), V(-75.9, 4, 0)),
    Part.LineSegment(V(-75.6, 0.8, 0), V(-75.6, 3.8, 0)),
    Part.LineSegment(V(-75.6, 3.8, 0), V(-67, 3.8, 0)),
    Part.ArcOfCircle(Part.Circle(V(-65.6, 2.3, 0), V(0, 0, 1), 2), math.radians(49), math.radians(131)),
    Part.LineSegment(V(-64.3, 3.8, 0), V(-55.6, 3.8, 0)),
    Part.LineSegment(V(-55.6, 3.8, 0), V(-55.6, 0.8, 0)),
    Part.LineSegment(V(-55.6, 0.8, 0), V(-64.3, 0.8, 0)),
    Part.ArcOfCircle(Part.Circle(V(-65.6, 2.3, 0), V(0, 0, 1), 2), math.radians(-131), math.radians(-49)),
    Part.LineSegment(V(-67, 0.8, 0), V(-75.6, 0.8, 0)),
    Part.LineSegment(V(-75.9, -19.5, 0), V(-67, -19.5, 0)),
    Part.ArcOfCircle(Part.Circle(V(-65.6, -17.7, 0), V(0, 0, 1), 2.2), math.radians(-129), math.radians(-51)),
    Part.LineSegment(V(-64.2, -19.5, 0), V(-55.4, -19.5, 0)),
    Part.LineSegment(V(-55.4, -19.5, 0), V(-55.4, -16, 0)),
    Part.LineSegment(V(-55.4, -16, 0), V(-64.2, -16, 0)),
    Part.ArcOfCircle(Part.Circle(V(-65.6, -17.7, 0), V(0, 0, 1), 2.2), math.radians(51), math.radians(129)),
    Part.LineSegment(V(-67, -16, 0), V(-75.9, -16, 0)),
    Part.LineSegment(V(-75.9, -16, 0), V(-75.9, -19.5, 0)),
    Part.LineSegment(V(-67, -19.2, 0), V(-75.6, -19.2, 0)),
    Part.LineSegment(V(-75.6, -19.2, 0), V(-75.6, -16.2, 0)),
    Part.LineSegment(V(-75.6, -16.2, 0), V(-67, -16.2, 0)),
    Part.ArcOfCircle(Part.Circle(V(-65.6, -17.7, 0), V(0, 0, 1), 2), math.radians(49), math.radians(131)),
    Part.LineSegment(V(-64.3, -16.2, 0), V(-55.6, -16.2, 0)),
    Part.LineSegment(V(-55.6, -16.2, 0), V(-55.6, -19.2, 0)),
    Part.LineSegment(V(-55.6, -19.2, 0), V(-64.3, -19.2, 0)),
    Part.ArcOfCircle(Part.Circle(V(-65.6, -17.7, 0), V(0, 0, 1), 2), math.radians(-131), math.radians(-49)),
    Part.LineSegment(V(4.1, 44, 0), V(4.1, 40.5, 0)),
    Part.LineSegment(V(4.1, 40.5, 0), V(13, 40.5, 0)),
    Part.ArcOfCircle(Part.Circle(V(14.4, 42.3, 0), V(0, 0, 1), 2.2), math.radians(-129), math.radians(-51)),
    Part.LineSegment(V(15.8, 40.5, 0), V(24.6, 40.5, 0)),
    Part.LineSegment(V(24.6, 40.5, 0), V(24.6, 44, 0)),
    Part.LineSegment(V(24.6, 44, 0), V(15.8, 44, 0)),
    Part.ArcOfCircle(Part.Circle(V(14.4, 42.3, 0), V(0, 0, 1), 2.2), math.radians(51), math.radians(129)),
    Part.LineSegment(V(13, 44, 0), V(4.1, 44, 0)),
    Part.LineSegment(V(4.4, 40.8, 0), V(4.4, 43.8, 0)),
    Part.LineSegment(V(4.4, 43.8, 0), V(13, 43.8, 0)),
    Part.ArcOfCircle(Part.Circle(V(14.4, 42.3, 0), V(0, 0, 1), 2), math.radians(49), math.radians(131)),
    Part.LineSegment(V(15.7, 43.8, 0), V(24.4, 43.8, 0)),
    Part.LineSegment(V(24.4, 43.8, 0), V(24.4, 40.8, 0)),
    Part.LineSegment(V(24.4, 40.8, 0), V(15.7, 40.8, 0)),
    Part.ArcOfCircle(Part.Circle(V(14.4, 42.3, 0), V(0, 0, 1), 2), math.radians(-131), math.radians(-49)),
    Part.LineSegment(V(13, 40.8, 0), V(4.4, 40.8, 0)),
], False)
sketch6.addConstraint([
    Sketcher.Constraint("Coincident", 0, 2, 1, 1),
    Sketcher.Constraint("Coincident", 1, 2, 2, 1),
    Sketcher.Constraint("Coincident", 2, 2, 3, 1),
    Sketcher.Constraint("Coincident", 3, 2, 4, 1),
    Sketcher.Constraint("Coincident", 4, 2, 5, 1),
    Sketcher.Constraint("Coincident", 5, 2, 6, 1),
    Sketcher.Constraint("Coincident", 6, 2, 7, 1),
    Sketcher.Constraint("Coincident", 7, 2, 0, 1),
    Sketcher.Constraint("Coincident", 8, 2, 9, 1),
    Sketcher.Constraint("Coincident", 9, 2, 10, 1),
    Sketcher.Constraint("Coincident", 10, 2, 11, 2),
    Sketcher.Constraint("Coincident", 11, 1, 12, 1),
    Sketcher.Constraint("Coincident", 12, 2, 13, 1),
    Sketcher.Constraint("Coincident", 13, 2, 14, 1),
    Sketcher.Constraint("Coincident", 14, 2, 15, 2),
    Sketcher.Constraint("Coincident", 15, 1, 8, 1),
    Sketcher.Constraint("Coincident", 16, 2, 17, 1),
    Sketcher.Constraint("Coincident", 17, 2, 18, 1),
    Sketcher.Constraint("Coincident", 18, 2, 19, 1),
    Sketcher.Constraint("Coincident", 19, 2, 20, 1),
    Sketcher.Constraint("Coincident", 20, 2, 21, 1),
    Sketcher.Constraint("Coincident", 21, 2, 22, 1),
    Sketcher.Constraint("Coincident", 22, 2, 23, 1),
    Sketcher.Constraint("Coincident", 23, 2, 16, 1),
    Sketcher.Constraint("Coincident", 24, 2, 25, 1),
    Sketcher.Constraint("Coincident", 25, 2, 26, 2),
    Sketcher.Constraint("Coincident", 26, 1, 27, 1),
    Sketcher.Constraint("Coincident", 27, 2, 28, 1),
    Sketcher.Constraint("Coincident", 28, 2, 29, 1),
    Sketcher.Constraint("Coincident", 29, 2, 30, 2),
    Sketcher.Constraint("Coincident", 30, 1, 31, 1),
    Sketcher.Constraint("Coincident", 31, 2, 24, 1),
    Sketcher.Constraint("Coincident", 32, 2, 33, 1),
    Sketcher.Constraint("Coincident", 33, 2, 34, 1),
    Sketcher.Constraint("Coincident", 34, 2, 35, 1),
    Sketcher.Constraint("Coincident", 35, 2, 36, 1),
    Sketcher.Constraint("Coincident", 36, 2, 37, 1),
    Sketcher.Constraint("Coincident", 37, 2, 38, 1),
    Sketcher.Constraint("Coincident", 38, 2, 39, 1),
    Sketcher.Constraint("Coincident", 39, 2, 32, 1),
    Sketcher.Constraint("Coincident", 40, 2, 41, 1),
    Sketcher.Constraint("Coincident", 41, 2, 42, 2),
    Sketcher.Constraint("Coincident", 42, 1, 43, 1),
    Sketcher.Constraint("Coincident", 43, 2, 44, 1),
    Sketcher.Constraint("Coincident", 44, 2, 45, 1),
    Sketcher.Constraint("Coincident", 45, 2, 46, 2),
    Sketcher.Constraint("Coincident", 46, 1, 47, 1),
    Sketcher.Constraint("Coincident", 47, 2, 40, 1),
    Sketcher.Constraint("Coincident", 48, 2, 49, 1),
    Sketcher.Constraint("Coincident", 49, 2, 50, 1),
    Sketcher.Constraint("Coincident", 50, 2, 51, 1),
    Sketcher.Constraint("Coincident", 51, 2, 52, 1),
    Sketcher.Constraint("Coincident", 52, 2, 53, 1),
    Sketcher.Constraint("Coincident", 53, 2, 54, 1),
    Sketcher.Constraint("Coincident", 54, 2, 55, 1),
    Sketcher.Constraint("Coincident", 55, 2, 48, 1),
    Sketcher.Constraint("Coincident", 56, 2, 57, 1),
    Sketcher.Constraint("Coincident", 57, 2, 58, 1),
    Sketcher.Constraint("Coincident", 58, 2, 59, 2),
    Sketcher.Constraint("Coincident", 59, 1, 60, 1),
    Sketcher.Constraint("Coincident", 60, 2, 61, 1),
    Sketcher.Constraint("Coincident", 61, 2, 62, 1),
    Sketcher.Constraint("Coincident", 62, 2, 63, 2),
    Sketcher.Constraint("Coincident", 63, 1, 56, 1),
    Sketcher.Constraint("Coincident", 64, 2, 65, 1),
    Sketcher.Constraint("Coincident", 65, 2, 66, 1),
    Sketcher.Constraint("Coincident", 66, 2, 67, 1),
    Sketcher.Constraint("Coincident", 67, 2, 68, 1),
    Sketcher.Constraint("Coincident", 68, 2, 69, 1),
    Sketcher.Constraint("Coincident", 69, 2, 70, 1),
    Sketcher.Constraint("Coincident", 70, 2, 71, 1),
    Sketcher.Constraint("Coincident", 71, 2, 64, 1),
    Sketcher.Constraint("Coincident", 72, 2, 73, 1),
    Sketcher.Constraint("Coincident", 73, 2, 74, 2),
    Sketcher.Constraint("Coincident", 74, 1, 75, 1),
    Sketcher.Constraint("Coincident", 75, 2, 76, 1),
    Sketcher.Constraint("Coincident", 76, 2, 77, 1),
    Sketcher.Constraint("Coincident", 77, 2, 78, 2),
    Sketcher.Constraint("Coincident", 78, 1, 79, 1),
    Sketcher.Constraint("Coincident", 79, 2, 72, 1),
    Sketcher.Constraint("Horizontal", 0),
    Sketcher.Constraint("Vertical", 1),
    Sketcher.Constraint("Horizontal", 2),
    Sketcher.Constraint("Horizontal", 4),
    Sketcher.Constraint("Vertical", 5),
    Sketcher.Constraint("Horizontal", 6),
    Sketcher.Constraint("Horizontal", 8),
    Sketcher.Constraint("Vertical", 9),
    Sketcher.Constraint("Horizontal", 10),
    Sketcher.Constraint("Horizontal", 12),
    Sketcher.Constraint("Vertical", 13),
    Sketcher.Constraint("Horizontal", 14),
    Sketcher.Constraint("Vertical", 16),
    Sketcher.Constraint("Horizontal", 17),
    Sketcher.Constraint("Horizontal", 19),
    Sketcher.Constraint("Vertical", 20),
    Sketcher.Constraint("Horizontal", 21),
    Sketcher.Constraint("Horizontal", 23),
    Sketcher.Constraint("Vertical", 24),
    Sketcher.Constraint("Horizontal", 25),
    Sketcher.Constraint("Horizontal", 27),
    Sketcher.Constraint("Vertical", 28),
    Sketcher.Constraint("Horizontal", 29),
    Sketcher.Constraint("Horizontal", 31),
    Sketcher.Constraint("Vertical", 32),
    Sketcher.Constraint("Horizontal", 33),
    Sketcher.Constraint("Horizontal", 35),
    Sketcher.Constraint("Vertical", 36),
    Sketcher.Constraint("Horizontal", 37),
    Sketcher.Constraint("Horizontal", 39),
    Sketcher.Constraint("Vertical", 40),
    Sketcher.Constraint("Horizontal", 41),
    Sketcher.Constraint("Horizontal", 43),
    Sketcher.Constraint("Vertical", 44),
    Sketcher.Constraint("Horizontal", 45),
    Sketcher.Constraint("Horizontal", 47),
    Sketcher.Constraint("Horizontal", 48),
    Sketcher.Constraint("Horizontal", 50),
    Sketcher.Constraint("Vertical", 51),
    Sketcher.Constraint("Horizontal", 52),
    Sketcher.Constraint("Horizontal", 54),
    Sketcher.Constraint("Vertical", 55),
    Sketcher.Constraint("Horizontal", 56),
    Sketcher.Constraint("Vertical", 57),
    Sketcher.Constraint("Horizontal", 58),
    Sketcher.Constraint("Horizontal", 60),
    Sketcher.Constraint("Vertical", 61),
    Sketcher.Constraint("Horizontal", 62),
    Sketcher.Constraint("Vertical", 64),
    Sketcher.Constraint("Horizontal", 65),
    Sketcher.Constraint("Horizontal", 67),
    Sketcher.Constraint("Vertical", 68),
    Sketcher.Constraint("Horizontal", 69),
    Sketcher.Constraint("Horizontal", 71),
    Sketcher.Constraint("Vertical", 72),
    Sketcher.Constraint("Horizontal", 73),
    Sketcher.Constraint("Horizontal", 75),
    Sketcher.Constraint("Vertical", 76),
    Sketcher.Constraint("Horizontal", 77),
    Sketcher.Constraint("Horizontal", 79),
    Sketcher.Constraint("Coincident", 7, 3, 3, 3),
    Sketcher.Constraint("Coincident", 11, 3, 3, 3),
    Sketcher.Constraint("Coincident", 15, 3, 3, 3),
    Sketcher.Constraint("Coincident", 22, 3, 18, 3),
    Sketcher.Constraint("Coincident", 26, 3, 18, 3),
    Sketcher.Constraint("Coincident", 30, 3, 18, 3),
    Sketcher.Constraint("Coincident", 38, 3, 34, 3),
    Sketcher.Constraint("Coincident", 42, 3, 34, 3),
    Sketcher.Constraint("Coincident", 46, 3, 34, 3),
    Sketcher.Constraint("Coincident", 53, 3, 49, 3),
    Sketcher.Constraint("Coincident", 59, 3, 49, 3),
    Sketcher.Constraint("Coincident", 63, 3, 49, 3),
    Sketcher.Constraint("Coincident", 70, 3, 66, 3),
    Sketcher.Constraint("Coincident", 74, 3, 66, 3),
    Sketcher.Constraint("Coincident", 78, 3, 66, 3),
    Sketcher.Constraint("Equal", 3, 7),
    Sketcher.Constraint("Equal", 11, 15),
    Sketcher.Constraint("Equal", 7, 18),
    Sketcher.Constraint("Equal", 18, 22),
    Sketcher.Constraint("Equal", 15, 26),
    Sketcher.Constraint("Equal", 26, 30),
    Sketcher.Constraint("Equal", 22, 34),
    Sketcher.Constraint("Equal", 34, 38),
    Sketcher.Constraint("Equal", 30, 42),
    Sketcher.Constraint("Equal", 42, 46),
    Sketcher.Constraint("Equal", 38, 49),
    Sketcher.Constraint("Equal", 49, 53),
    Sketcher.Constraint("Equal", 46, 59),
    Sketcher.Constraint("Equal", 59, 63),
    Sketcher.Constraint("Equal", 53, 66),
    Sketcher.Constraint("Equal", 66, 70),
    Sketcher.Constraint("Equal", 63, 74),
    Sketcher.Constraint("Equal", 74, 78),
    Sketcher.Constraint("Horizontal", 15, 3, 66, 3),
    Sketcher.Constraint("Horizontal", 2, 2, 3, 2),
    Sketcher.Constraint("Horizontal", 0, 2, 5, 2),
    Sketcher.Constraint("Horizontal", 10, 2, 11, 1),
    Sketcher.Constraint("Horizontal", 8, 2, 13, 2),
    Sketcher.Constraint("Horizontal", 17, 2, 18, 2),
    Sketcher.Constraint("Horizontal", 21, 2, 22, 2),
    Sketcher.Constraint("Horizontal", 25, 2, 26, 1),
    Sketcher.Constraint("Horizontal", 29, 2, 30, 1),
    Sketcher.Constraint("Horizontal", 33, 2, 34, 2),
    Sketcher.Constraint("Horizontal", 37, 2, 38, 2),
    Sketcher.Constraint("Horizontal", 41, 2, 42, 1),
    Sketcher.Constraint("Horizontal", 45, 2, 46, 1),
    Sketcher.Constraint("Horizontal", 48, 2, 49, 2),
    Sketcher.Constraint("Horizontal", 52, 2, 53, 2),
    Sketcher.Constraint("Horizontal", 58, 2, 59, 1),
    Sketcher.Constraint("Horizontal", 56, 2, 61, 2),
    Sketcher.Constraint("Horizontal", 4, 2, 64, 2),
    Sketcher.Constraint("Horizontal", 65, 2, 66, 2),
    Sketcher.Constraint("Horizontal", 7, 2, 68, 2),
    Sketcher.Constraint("Horizontal", 69, 2, 70, 2),
    Sketcher.Constraint("Horizontal", 15, 1, 72, 2),
    Sketcher.Constraint("Horizontal", 73, 2, 74, 1),
    Sketcher.Constraint("Horizontal", 12, 2, 76, 2),
    Sketcher.Constraint("Horizontal", 77, 2, 78, 1),
    Sketcher.Constraint("Vertical", 15, 3, 18, 3),
    Sketcher.Constraint("Vertical", 30, 3, 34, 3),
    Sketcher.Constraint("Vertical", 46, 3, 49, 3),
    Sketcher.Constraint("Vertical", 3, 2, 6, 2),
    Sketcher.Constraint("Vertical", 11, 1, 14, 2),
    Sketcher.Constraint("Vertical", 1, 2, 16, 2),
    Sketcher.Constraint("Vertical", 7, 2, 17, 2),
    Sketcher.Constraint("Vertical", 5, 2, 19, 2),
    Sketcher.Constraint("Vertical", 18, 2, 21, 2),
    Sketcher.Constraint("Vertical", 13, 2, 24, 2),
    Sketcher.Constraint("Vertical", 14, 2, 25, 2),
    Sketcher.Constraint("Vertical", 9, 2, 27, 2),
    Sketcher.Constraint("Vertical", 26, 1, 29, 2),
    Sketcher.Constraint("Vertical", 23, 2, 32, 2),
    Sketcher.Constraint("Vertical", 22, 2, 33, 2),
    Sketcher.Constraint("Vertical", 20, 2, 35, 2),
    Sketcher.Constraint("Vertical", 34, 2, 37, 2),
    Sketcher.Constraint("Vertical", 31, 2, 40, 2),
    Sketcher.Constraint("Vertical", 30, 1, 41, 2),
    Sketcher.Constraint("Vertical", 28, 2, 43, 2),
    Sketcher.Constraint("Vertical", 42, 1, 45, 2),
    Sketcher.Constraint("Vertical", 38, 2, 48, 2),
    Sketcher.Constraint("Vertical", 36, 2, 50, 2),
    Sketcher.Constraint("Vertical", 49, 2, 52, 2),
    Sketcher.Constraint("Vertical", 39, 2, 54, 2),
    Sketcher.Constraint("Vertical", 47, 2, 56, 2),
    Sketcher.Constraint("Vertical", 46, 1, 58, 2),
    Sketcher.Constraint("Vertical", 44, 2, 60, 2),
    Sketcher.Constraint("Vertical", 59, 1, 62, 2),
    Sketcher.Constraint("Equal", 2, 4),
    Sketcher.Constraint("Equal", 10, 12),
    Sketcher.Constraint("Equal", 54, 65),
    Sketcher.Constraint("Equal", 65, 67),
    Sketcher.Constraint("Equal", 62, 73),
    Sketcher.Constraint("Equal", 73, 75),
    Sketcher.Constraint("Radius", 11, 2.0),
    Sketcher.Constraint("DistanceY", 9, 2, 9, 1, 3.0),
    Sketcher.Constraint("Radius", 3, 2.25),
    Sketcher.Constraint("DistanceY", 1, 2, 1, 1, 3.5),
    Sketcher.Constraint("DistanceX", 0, 2, 0, 1, 8.835786),
    Sketcher.Constraint("DistanceX", 8, 1, 8, 2, 8.677124),
    Sketcher.Constraint("DistanceX", 3, 2, -1, 1, 64.21368),
    Sketcher.Constraint("DistanceX", -1, 1, 66, 2, 15.78632),
    Sketcher.Constraint("DistanceY", -1, 1, 3, 3, 42.295937),
    Sketcher.Constraint("DistanceY", -1, 1, 18, 3, 22.295937),
    Sketcher.Constraint("DistanceY", -1, 1, 34, 3, 2.295937),
    Sketcher.Constraint("DistanceY", 49, 3, -1, 1, 17.704063),
])
sketch6.setExpression("Constraints[233]", "Params.sketch6_radius")
sketch6.setExpression("Constraints[234]", "Params.sketch6_height")
sketch6.setExpression("Constraints[235]", "Params.sketch6_radius2")
sketch6.setExpression("Constraints[236]", "Params.sketch6_height2")
pocket4 = doc.addObject("PartDesign::Pocket", "Pocket003")
body.addObject(pocket4)
pocket4.Profile = sketch6
pocket4.setExpression("Length", "Params.pocket4_length")
pocket4.Reversed = True

doc.recompute()
